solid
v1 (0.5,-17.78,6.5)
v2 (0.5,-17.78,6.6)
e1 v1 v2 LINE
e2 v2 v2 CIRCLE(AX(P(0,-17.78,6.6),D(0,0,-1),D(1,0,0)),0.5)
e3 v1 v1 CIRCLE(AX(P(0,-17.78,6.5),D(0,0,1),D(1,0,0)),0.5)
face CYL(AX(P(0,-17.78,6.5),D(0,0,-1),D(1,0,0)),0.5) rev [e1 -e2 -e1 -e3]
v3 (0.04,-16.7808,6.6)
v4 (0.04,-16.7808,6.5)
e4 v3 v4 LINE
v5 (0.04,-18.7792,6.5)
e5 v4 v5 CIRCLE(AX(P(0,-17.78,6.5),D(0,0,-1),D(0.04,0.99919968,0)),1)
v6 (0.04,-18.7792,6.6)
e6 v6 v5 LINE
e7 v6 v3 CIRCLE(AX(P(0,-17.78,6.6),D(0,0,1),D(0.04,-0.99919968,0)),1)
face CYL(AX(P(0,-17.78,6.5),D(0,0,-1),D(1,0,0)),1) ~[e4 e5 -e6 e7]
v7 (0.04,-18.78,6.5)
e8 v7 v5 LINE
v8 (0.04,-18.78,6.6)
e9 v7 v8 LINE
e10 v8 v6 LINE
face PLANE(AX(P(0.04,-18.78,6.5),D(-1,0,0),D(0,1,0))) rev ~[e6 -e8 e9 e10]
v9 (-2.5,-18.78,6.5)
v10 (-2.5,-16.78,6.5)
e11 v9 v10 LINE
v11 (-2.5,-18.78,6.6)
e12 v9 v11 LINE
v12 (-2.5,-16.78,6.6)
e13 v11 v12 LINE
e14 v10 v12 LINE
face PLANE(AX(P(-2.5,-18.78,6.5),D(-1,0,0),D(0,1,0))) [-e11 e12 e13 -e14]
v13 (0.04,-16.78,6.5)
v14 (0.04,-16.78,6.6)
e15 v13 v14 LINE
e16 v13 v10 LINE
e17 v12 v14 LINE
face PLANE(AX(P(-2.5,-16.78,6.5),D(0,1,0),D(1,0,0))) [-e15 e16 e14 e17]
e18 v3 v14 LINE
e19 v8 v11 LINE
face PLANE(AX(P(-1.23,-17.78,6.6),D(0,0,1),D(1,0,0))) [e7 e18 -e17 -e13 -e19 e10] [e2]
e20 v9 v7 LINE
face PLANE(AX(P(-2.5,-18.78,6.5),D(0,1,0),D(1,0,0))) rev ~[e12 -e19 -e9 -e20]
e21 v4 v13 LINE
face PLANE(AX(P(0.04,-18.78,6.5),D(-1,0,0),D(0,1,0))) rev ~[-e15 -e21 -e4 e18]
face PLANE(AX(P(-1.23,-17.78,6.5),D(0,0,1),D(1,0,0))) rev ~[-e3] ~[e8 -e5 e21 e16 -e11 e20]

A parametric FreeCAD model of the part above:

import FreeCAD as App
import Part
import Sketcher


def add_polygon(sketch, points):
    """Adds a closed chain of lines whose ends are joined by coincident constraints."""
    first, n = sketch.GeometryCount, len(points)
    for a, b in zip(points, points[1:] + points[:1]):
        sketch.addGeometry(Part.LineSegment(App.Vector(*a, 0), App.Vector(*b, 0)), False)
    for i in range(n):
        sketch.addConstraint(Sketcher.Constraint("Coincident", first + i, 2, first + (i + 1) % n, 1))

doc = App.newDocument("Part")
body = doc.addObject("PartDesign::Body", "Body")

# Sketch on XY plane
sketch1 = body.newObject("Sketcher::SketchObject", "Sketch")
sketch1.AttachmentSupport = (doc.getObject("XY_Plane"), [""])
sketch1.MapMode = "FlatFace"
sketch1.AttachmentOffset = App.Placement(App.Vector(0, 0, 1), App.Rotation())
sketch1.addGeometry(Part.Circle(App.Vector(0, 0, 0), App.Vector(0, 0, 1), 0.5), False)
sketch1.addConstraint([
    Sketcher.Constraint("Coincident", 0, 3, -1, 1),
    Sketcher.Constraint("Diameter", 0, 1.0),
])
pad1 = body.newObject("PartDesign::Pad", "Pad")
pad1.Profile = sketch1
pad1.Length = 0.1
body2 = doc.addObject("PartDesign::Body", "Body001")

# Sketch on XY plane
sketch2 = body2.newObject("Sketcher::SketchObject", "Sketch001")
sketch2.AttachmentSupport = (doc.getObject("XY_Plane001"), [""])
sketch2.MapMode = "FlatFace"
sketch2.AttachmentOffset = App.Placement(App.Vector(0, 0, 1), App.Rotation())
add_polygon(sketch2, [(-2.5, 1), (-2.5, -1), (0.04, -1), (0.04, 1)])  # lines 0-3
sketch2.addConstraint([
    Sketcher.Constraint("Vertical", 0),
    Sketcher.Constraint("Horizontal", 1),
    Sketcher.Constraint("Vertical", 2),
    Sketcher.Constraint("Horizontal", 3),
    Sketcher.Constraint("DistanceY", 0, 2, 0, 1, 2.0),
    Sketcher.Constraint("DistanceY", 0, 2, -1, 1, 1.0),
    Sketcher.Constraint("DistanceX", 1, 1, 1, 2, 2.54),
    Sketcher.Constraint("DistanceX", 0, 2, -1, 1, 2.5),
])
pad2 = body2.newObject("PartDesign::Pad", "Pad001")
pad2.Profile = sketch2
pad2.Length = 0.1
doc.recompute()

boolean = body2.newObject("PartDesign::Boolean", "Boolean")
boolean.Type = "Cut"
boolean.addObjects([body])
body3 = doc.addObject("PartDesign::Body", "Body002")

# Sketch on XY plane
sketch3 = body3.newObject("Sketcher::SketchObject", "Sketch002")
sketch3.AttachmentSupport = (doc.getObject("XY_Plane002"), [""])
sketch3.MapMode = "FlatFace"
sketch3.AttachmentOffset = App.Placement(App.Vector(0, 0, 1), App.Rotation())
sketch3.addGeometry(Part.Circle(App.Vector(0, 0, 0), App.Vector(0, 0, 1), 0.5), False)
sketch3.addConstraint([
    Sketcher.Constraint("Coincident", 0, 3, -1, 1),
    Sketcher.Constraint("Diameter", 0, 1.0),
])
pad3 = body3.newObject("PartDesign::Pad", "Pad002")
pad3.Profile = sketch3
pad3.Length = 0.1
body4 = doc.addObject("PartDesign::Body", "Body003")

# Sketch on XY plane
sketch4 = body4.newObject("Sketcher::SketchObject", "Sketch003")
sketch4.AttachmentSupport = (doc.getObject("XY_Plane003"), [""])
sketch4.MapMode = "FlatFace"
sketch4.AttachmentOffset = App.Placement(App.Vector(0, 0, 1), App.Rotation())
sketch4.addGeometry(Part.Circle(App.Vector(0, 0, 0), App.Vector(0, 0, 1), 1), False)
sketch4.addConstraint([
    Sketcher.Constraint("Coincident", 0, 3, -1, 1),
    Sketcher.Constraint("Diameter", 0, 2.0),
])
pad4 = body4.newObject("PartDesign::Pad", "Pad003")
pad4.Profile = sketch4
pad4.Length = 0.1
doc.recompute()

boolean2 = body4.newObject("PartDesign::Boolean", "Boolean001")
boolean2.Type = "Cut"
boolean2.addObjects([body3])
doc.recompute()

boolean3 = body4.newObject("PartDesign::Boolean", "Boolean002")
boolean3.Type = "Fuse"
boolean3.addObjects([body2])
body5 = doc.addObject("PartDesign::Body", "Body004")
doc.recompute()

body4.Placement = App.Placement(App.Vector(0, -17.78, 5.5), App.Rotation(App.Vector(0, 0, 1), 0))
boolean4 = body5.newObject("PartDesign::Boolean", "Boolean003")
boolean4.Type = "Fuse"
boolean4.addObjects([body4])

doc.recompute()
